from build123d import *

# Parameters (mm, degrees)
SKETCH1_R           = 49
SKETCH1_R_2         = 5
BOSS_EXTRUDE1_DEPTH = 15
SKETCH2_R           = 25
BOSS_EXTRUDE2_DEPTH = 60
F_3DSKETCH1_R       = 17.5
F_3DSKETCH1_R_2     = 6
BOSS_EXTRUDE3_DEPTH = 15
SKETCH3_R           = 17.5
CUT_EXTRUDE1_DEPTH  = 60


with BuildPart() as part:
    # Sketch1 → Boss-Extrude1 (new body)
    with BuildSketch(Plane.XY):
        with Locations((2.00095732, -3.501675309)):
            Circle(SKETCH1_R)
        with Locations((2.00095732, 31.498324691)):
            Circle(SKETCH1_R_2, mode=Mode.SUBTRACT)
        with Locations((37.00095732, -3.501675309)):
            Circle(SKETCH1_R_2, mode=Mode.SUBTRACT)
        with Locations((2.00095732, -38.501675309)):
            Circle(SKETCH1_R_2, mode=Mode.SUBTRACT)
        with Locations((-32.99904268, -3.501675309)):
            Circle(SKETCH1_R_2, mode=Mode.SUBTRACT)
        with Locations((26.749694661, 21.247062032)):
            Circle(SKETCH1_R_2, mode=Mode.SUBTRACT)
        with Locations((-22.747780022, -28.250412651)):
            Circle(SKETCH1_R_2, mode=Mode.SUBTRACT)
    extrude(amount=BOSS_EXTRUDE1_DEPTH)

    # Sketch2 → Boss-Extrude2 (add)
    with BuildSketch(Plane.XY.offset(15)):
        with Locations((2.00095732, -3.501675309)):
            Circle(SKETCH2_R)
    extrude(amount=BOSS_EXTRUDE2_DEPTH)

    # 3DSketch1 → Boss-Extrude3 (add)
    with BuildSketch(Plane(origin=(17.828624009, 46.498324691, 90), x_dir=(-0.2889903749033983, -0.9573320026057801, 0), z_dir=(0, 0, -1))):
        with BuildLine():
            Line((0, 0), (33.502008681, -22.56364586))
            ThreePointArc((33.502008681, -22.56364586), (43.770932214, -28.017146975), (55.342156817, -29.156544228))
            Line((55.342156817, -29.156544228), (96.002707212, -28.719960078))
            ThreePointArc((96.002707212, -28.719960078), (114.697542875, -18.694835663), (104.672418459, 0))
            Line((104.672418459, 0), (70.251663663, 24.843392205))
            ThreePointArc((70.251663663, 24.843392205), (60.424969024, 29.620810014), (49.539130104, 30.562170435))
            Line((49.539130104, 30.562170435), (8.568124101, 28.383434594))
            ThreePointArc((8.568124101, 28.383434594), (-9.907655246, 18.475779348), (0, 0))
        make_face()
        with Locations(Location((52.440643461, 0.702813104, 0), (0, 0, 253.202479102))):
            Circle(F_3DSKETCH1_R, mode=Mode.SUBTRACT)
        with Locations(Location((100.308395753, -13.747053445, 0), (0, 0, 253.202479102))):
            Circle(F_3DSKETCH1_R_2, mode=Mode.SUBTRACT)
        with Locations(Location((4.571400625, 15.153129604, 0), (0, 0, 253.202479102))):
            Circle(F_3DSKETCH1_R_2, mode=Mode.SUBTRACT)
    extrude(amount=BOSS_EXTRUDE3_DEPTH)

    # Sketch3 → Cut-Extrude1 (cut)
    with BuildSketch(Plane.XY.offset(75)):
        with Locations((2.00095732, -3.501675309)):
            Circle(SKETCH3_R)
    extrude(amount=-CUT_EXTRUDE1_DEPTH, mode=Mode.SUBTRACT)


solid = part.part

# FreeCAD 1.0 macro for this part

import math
import FreeCAD as App
import Part
import Sketcher
from FreeCAD import Vector

doc = App.newDocument("Part")
body = doc.addObject("PartDesign::Body", "Body")

sketch1 = body.newObject("Sketcher::SketchObject", "Sketch")
sketch1.AttachmentSupport = (doc.getObject("XY_Plane"), [""])
sketch1.MapMode = "FlatFace"
sketch1.addGeometry([
    Part.Circle(Vector(2, -4, 0), Vector(0, 0, 1), 49),
    Part.Circle(Vector(-23, -28, 0), Vector(0, 0, 1), 5),
    Part.Circle(Vector(2, -39, 0), Vector(0, 0, 1), 5),
    Part.Circle(Vector(-33, -4, 0), Vector(0, 0, 1), 5),
    Part.Circle(Vector(37, -4, 0), Vector(0, 0, 1), 5),
    Part.Circle(Vector(2, 31, 0), Vector(0, 0, 1), 5),
    Part.Circle(Vector(27, 21, 0), Vector(0, 0, 1), 5),
], False)
sketch1.addConstraint([
    Sketcher.Constraint("Equal", 1, 2),
    Sketcher.Constraint("Equal", 2, 3),
    Sketcher.Constraint("Equal", 3, 4),
    Sketcher.Constraint("Equal", 4, 5),
    Sketcher.Constraint("Equal", 5, 6),
    Sketcher.Constraint("Horizontal", 0, 3, 3, 3),
    Sketcher.Constraint("Horizontal", 3, 3, 4, 3),
    Sketcher.Constraint("Vertical", 0, 3, 2, 3),
    Sketcher.Constraint("Vertical", 2, 3, 5, 3),
    Sketcher.Constraint("Diameter", 0, 98.0),
    Sketcher.Constraint("Diameter", 1, 10.0),
    Sketcher.Constraint("DistanceY", 2, 3, 0, 3, 35.0),
    Sketcher.Constraint("DistanceX", 3, 3, 0, 3, 35.0),
    Sketcher.Constraint("DistanceX", 0, 3, 4, 3, 35.0),
    Sketcher.Constraint("DistanceY", 0, 3, 5, 3, 35.0),
    Sketcher.Constraint("DistanceX", 1, 3, -1, 1, 22.74778),
    Sketcher.Constraint("DistanceX", -1, 1, 0, 3, 2.000957),
    Sketcher.Constraint("DistanceY", 0, 3, -1, 1, 3.501675),
    Sketcher.Constraint("DistanceY", 1, 3, -1, 1, 28.250413),
    Sketcher.Constraint("DistanceX", -1, 1, 6, 3, 26.749695),
    Sketcher.Constraint("DistanceY", -1, 1, 6, 3, 21.247062),
])
pad1 = body.newObject("PartDesign::Pad", "Pad")
pad1.Profile = sketch1
pad1.Length = 15

sketch2 = body.newObject("Sketcher::SketchObject", "Sketch001")
sketch2.AttachmentSupport = (doc.getObject("XY_Plane"), [""])
sketch2.MapMode = "FlatFace"
sketch2.AttachmentOffset = App.Placement(Vector(0, 0, 15), App.Rotation())
sketch2.addGeometry(Part.Circle(Vector(2, -4, 0), Vector(0, 0, 1), 25), False)
sketch2.addConstraint([
    Sketcher.Constraint("Diameter", 0, 50.0),
    Sketcher.Constraint("DistanceX", -1, 1, 0, 3, 2.000957),
    Sketcher.Constraint("DistanceY", 0, 3, -1, 1, 3.501675),
])
pad2 = body.newObject("PartDesign::Pad", "Pad001")
pad2.Profile = sketch2
pad2.Length = 60

sketch3 = body.newObject("Sketcher::SketchObject", "Sketch002")
sketch3.AttachmentSupport = (doc.getObject("XY_Plane"), [""])
sketch3.MapMode = "FlatFace"
sketch3.AttachmentOffset = App.Placement(Vector(0, 0, 90), App.Rotation())
sketch3.addGeometry([
    Part.LineSegment(Vector(18, 46, 0), Vector(30, 8, 0)),
    Part.ArcOfCircle(Part.Circle(Vector(2, -4, 0), Vector(0, 0, 1), 30), math.radians(-22), math.radians(22)),
    Part.LineSegment(Vector(30, -15, 0), Vector(18, -54, 0)),
    Part.ArcOfCircle(Part.Circle(Vector(3, -54, 0), Vector(0, 0, 1), 15), math.radians(180), math.radians(360)),
    Part.LineSegment(Vector(-12, -54, 0), Vector(-26, -14, 0)),
    Part.ArcOfCircle(Part.Circle(Vector(2, -4, 0), Vector(0, 0, 1), 30), math.radians(158), math.radians(200)),
    Part.LineSegment(Vector(-26, 8, 0), Vector(-12, 46, 0)),
    Part.ArcOfCircle(Part.Circle(Vector(3, 46, 0), Vector(0, 0, 1), 15), math.radians(0), math.radians(180)),
    Part.Circle(Vector(2, -54, 0), Vector(0, 0, 1), 6),
    Part.Circle(Vector(2, -4, 0), Vector(0, 0, 1), 18),
    Part.Circle(Vector(2, 47, 0), Vector(0, 0, 1), 6),
], False)
sketch3.addConstraint([
    Sketcher.Constraint("Coincident", 0, 2, 1, 2),
    Sketcher.Constraint("Coincident", 1, 1, 2, 1),
    Sketcher.Constraint("Coincident", 2, 2, 3, 2),
    Sketcher.Constraint("Coincident", 3, 1, 4, 1),
    Sketcher.Constraint("Coincident", 4, 2, 5, 2),
    Sketcher.Constraint("Coincident", 5, 1, 6, 1),
    Sketcher.Constraint("Coincident", 6, 2, 7, 2),
    Sketcher.Constraint("Coincident", 7, 1, 0, 1),
    Sketcher.Constraint("Coincident", 5, 3, 1, 3),
    Sketcher.Constraint("Coincident", 9, 3, 1, 3),
    Sketcher.Constraint("Equal", 1, 5),
    Sketcher.Constraint("Equal", 8, 10),
    Sketcher.Constraint("Horizontal", 3, 3, 2, 2),
    Sketcher.Constraint("Horizontal", 2, 2, 3, 1),
    Sketcher.Constraint("Horizontal", 0, 2, 5, 1),
    Sketcher.Constraint("Horizontal", 7, 3, 6, 2),
    Sketcher.Constraint("Horizontal", 6, 2, 7, 1),
    Sketcher.Constraint("Vertical", 5, 3, 8, 3),
    Sketcher.Constraint("Vertical", 9, 3, 10, 3),
    Sketcher.Constraint("Vertical", 0, 2, 1, 1),
    Sketcher.Constraint("Diameter", 8, 12.0),
    Sketcher.Constraint("Diameter", 9, 35.0),
    Sketcher.Constraint("Radius", 1, 30.0),
    Sketcher.Constraint("Radius", 3, 15.0),
    Sketcher.Constraint("DistanceY", 5, 3, 7, 3, 50.0),
    Sketcher.Constraint("Radius", 7, 14.824238),
    Sketcher.Constraint("DistanceX", 5, 1, 6, 2, 13.926),
    Sketcher.Constraint("DistanceY", 3, 3, -1, 1, 53.707931),
    Sketcher.Constraint("DistanceY", 8, 3, -1, 1, 53.502879),
    Sketcher.Constraint("DistanceY", 4, 2, -1, 1, 13.57634),
    Sketcher.Constraint("DistanceX", 5, 1, -1, 1, 25.745852),
    Sketcher.Constraint("DistanceX", 5, 3, 7, 3, 1.003429),
    Sketcher.Constraint("DistanceY", 7, 3, 10, 3, 0.00276),
    Sketcher.Constraint("Distance", 2, 40.662894),
    Sketcher.Constraint("Distance", 4, 42.449764),
])
pad3 = body.newObject("PartDesign::Pad", "Pad002")
pad3.Profile = sketch3
pad3.Length = 15
pad3.Reversed = True

sketch4 = body.newObject("Sketcher::SketchObject", "Sketch003")
sketch4.AttachmentSupport = (doc.getObject("XY_Plane"), [""])
sketch4.MapMode = "FlatFace"
sketch4.AttachmentOffset = App.Placement(Vector(0, 0, 75), App.Rotation())
sketch4.addGeometry(Part.Circle(Vector(2, -4, 0), Vector(0, 0, 1), 18), False)
sketch4.addConstraint([
    Sketcher.Constraint("Diameter", 0, 35.0),
    Sketcher.Constraint("DistanceX", -1, 1, 0, 3, 2.000957),
    Sketcher.Constraint("DistanceY", 0, 3, -1, 1, 3.501675),
])
pocket1 = body.newObject("PartDesign::Pocket", "Pocket")
pocket1.Profile = sketch4
pocket1.Length = 60

doc.recompute()
